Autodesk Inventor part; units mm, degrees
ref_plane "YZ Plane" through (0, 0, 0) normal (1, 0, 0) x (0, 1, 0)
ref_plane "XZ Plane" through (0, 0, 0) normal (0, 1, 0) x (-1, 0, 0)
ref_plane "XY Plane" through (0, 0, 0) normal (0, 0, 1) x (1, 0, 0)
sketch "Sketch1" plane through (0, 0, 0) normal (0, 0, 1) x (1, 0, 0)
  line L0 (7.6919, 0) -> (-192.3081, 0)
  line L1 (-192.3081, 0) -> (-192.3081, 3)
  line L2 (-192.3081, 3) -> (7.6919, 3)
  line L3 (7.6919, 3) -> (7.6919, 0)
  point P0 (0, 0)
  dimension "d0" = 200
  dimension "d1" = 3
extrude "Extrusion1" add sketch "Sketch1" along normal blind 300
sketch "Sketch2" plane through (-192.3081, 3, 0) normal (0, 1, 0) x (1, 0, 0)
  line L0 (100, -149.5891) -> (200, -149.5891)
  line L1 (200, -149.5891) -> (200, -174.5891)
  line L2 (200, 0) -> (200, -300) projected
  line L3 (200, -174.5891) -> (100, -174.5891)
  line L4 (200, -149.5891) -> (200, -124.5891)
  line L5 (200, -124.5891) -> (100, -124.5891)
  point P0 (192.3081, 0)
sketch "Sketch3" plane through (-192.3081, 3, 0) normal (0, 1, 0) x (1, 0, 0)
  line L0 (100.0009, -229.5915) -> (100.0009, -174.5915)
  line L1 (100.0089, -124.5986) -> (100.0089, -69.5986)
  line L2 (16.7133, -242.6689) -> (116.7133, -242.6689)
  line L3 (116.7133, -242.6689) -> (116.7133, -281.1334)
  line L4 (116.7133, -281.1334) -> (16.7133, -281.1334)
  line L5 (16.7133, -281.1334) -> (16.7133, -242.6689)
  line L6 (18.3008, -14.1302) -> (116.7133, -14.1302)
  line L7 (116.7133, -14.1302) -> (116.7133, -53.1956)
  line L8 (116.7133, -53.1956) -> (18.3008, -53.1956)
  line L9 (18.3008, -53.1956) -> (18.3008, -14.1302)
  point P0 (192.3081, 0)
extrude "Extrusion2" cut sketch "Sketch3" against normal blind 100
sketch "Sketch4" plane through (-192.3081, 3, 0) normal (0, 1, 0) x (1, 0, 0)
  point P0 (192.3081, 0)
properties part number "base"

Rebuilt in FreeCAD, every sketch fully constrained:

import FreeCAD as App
import Part
import Sketcher

V = App.Vector

doc = App.newDocument("Part")
params = doc.addObject("Spreadsheet::Sheet", "Params")
for row, (alias, value) in enumerate([
    ("sketch1_width", "200 mm"),
    ("sketch1_height", "3 mm"),
    ("pad1_length", "300 mm"),
    ("sketch2_width", "100 mm"),
    ("pocket1_length", "100 mm"),
], start=1):
    params.set(f"A{row}", alias)
    params.set(f"B{row}", "=" + value)
    params.setAlias(f"B{row}", alias)

body = doc.addObject("PartDesign::Body", "Body")

# Sketch on XY plane
sketch1 = body.newObject("Sketcher::SketchObject", "Sketch")
sketch1.AttachmentSupport = (doc.getObject("XY_Plane"), [""])
sketch1.MapMode = "FlatFace"
sketch1.addGeometry(Part.LineSegment(V(-192.3, 0, 0), V(7.7, 0, 0)), False)
sketch1.addGeometry(Part.LineSegment(V(7.7, 0, 0), V(7.7, 3, 0)), False)
sketch1.addGeometry(Part.LineSegment(V(7.7, 3, 0), V(-192.3, 3, 0)), False)
sketch1.addGeometry(Part.LineSegment(V(-192.3, 3, 0), V(-192.3, 0, 0)), False)
sketch1.addConstraint(Sketcher.Constraint("Coincident", 0, 2, 1, 1))
sketch1.addConstraint(Sketcher.Constraint("Coincident", 1, 2, 2, 1))
sketch1.addConstraint(Sketcher.Constraint("Coincident", 2, 2, 3, 1))
sketch1.addConstraint(Sketcher.Constraint("Coincident", 3, 2, 0, 1))
sketch1.addConstraint(Sketcher.Constraint("Horizontal", 0))
sketch1.addConstraint(Sketcher.Constraint("Vertical", 1))
sketch1.addConstraint(Sketcher.Constraint("Horizontal", 2))
sketch1.addConstraint(Sketcher.Constraint("Vertical", 3))
sketch1.addConstraint(Sketcher.Constraint("PointOnObject", 0, 2, -1))
sketch1.addConstraint(Sketcher.Constraint("DistanceX", 0, 1, 0, 2, 200.0))
sketch1.addConstraint(Sketcher.Constraint("DistanceY", 1, 1, 1, 2, 3.0))
sketch1.addConstraint(Sketcher.Constraint("DistanceX", -1, 1, 0, 2, 7.692))
sketch1.setExpression("Constraints[9]", "Params.sketch1_width")
sketch1.setExpression("Constraints[10]", "Params.sketch1_height")
pad1 = body.newObject("PartDesign::Pad", "Pad")
pad1.Profile = sketch1
pad1.setExpression("Length", "Params.pad1_length")

# Sketch on XZ plane
sketch2 = body.newObject("Sketcher::SketchObject", "Sketch001")
sketch2.AttachmentSupport = (doc.getObject("XZ_Plane"), [""])
sketch2.MapMode = "FlatFace"
sketch2.AttachmentOffset = App.Placement(V(0, 0, -3), App.Rotation())
sketch2.addGeometry(Part.LineSegment(V(-76, 243, 0), V(-176, 243, 0)), False)
sketch2.addGeometry(Part.LineSegment(V(-176, 243, 0), V(-176, 281, 0)), False)
sketch2.addGeometry(Part.LineSegment(V(-176, 281, 0), V(-76, 281, 0)), False)
sketch2.addGeometry(Part.LineSegment(V(-76, 281, 0), V(-76, 243, 0)), False)
sketch2.addGeometry(Part.LineSegment(V(-76, 14, 0), V(-174, 14, 0)), False)
sketch2.addGeometry(Part.LineSegment(V(-174, 14, 0), V(-174, 53, 0)), False)
sketch2.addGeometry(Part.LineSegment(V(-174, 53, 0), V(-76, 53, 0)), False)
sketch2.addGeometry(Part.LineSegment(V(-76, 53, 0), V(-76, 14, 0)), False)
sketch2.addConstraint(Sketcher.Constraint("Coincident", 0, 2, 1, 1))
sketch2.addConstraint(Sketcher.Constraint("Coincident", 1, 2, 2, 1))
sketch2.addConstraint(Sketcher.Constraint("Coincident", 2, 2, 3, 1))
sketch2.addConstraint(Sketcher.Constraint("Coincident", 3, 2, 0, 1))
sketch2.addConstraint(Sketcher.Constraint("Coincident", 4, 2, 5, 1))
sketch2.addConstraint(Sketcher.Constraint("Coincident", 5, 2, 6, 1))
sketch2.addConstraint(Sketcher.Constraint("Coincident", 6, 2, 7, 1))
sketch2.addConstraint(Sketcher.Constraint("Coincident", 7, 2, 4, 1))
sketch2.addConstraint(Sketcher.Constraint("Horizontal", 0))
sketch2.addConstraint(Sketcher.Constraint("Vertical", 1))
sketch2.addConstraint(Sketcher.Constraint("Horizontal", 2))
sketch2.addConstraint(Sketcher.Constraint("Vertical", 3))
sketch2.addConstraint(Sketcher.Constraint("Horizontal", 4))
sketch2.addConstraint(Sketcher.Constraint("Vertical", 5))
sketch2.addConstraint(Sketcher.Constraint("Horizontal", 6))
sketch2.addConstraint(Sketcher.Constraint("Vertical", 7))
sketch2.addConstraint(Sketcher.Constraint("Vertical", 3, 2, 6, 2))
sketch2.addConstraint(Sketcher.Constraint("DistanceX", 0, 2, 0, 1, 100.0))
sketch2.addConstraint(Sketcher.Constraint("DistanceX", 4, 2, 4, 1, 98.4125))
sketch2.addConstraint(Sketcher.Constraint("DistanceY", 1, 1, 1, 2, 38.4645))
sketch2.addConstraint(Sketcher.Constraint("DistanceY", 5, 1, 5, 2, 39.0654))
sketch2.addConstraint(Sketcher.Constraint("DistanceY", -1, 1, 0, 2, 242.669))
sketch2.addConstraint(Sketcher.Constraint("DistanceX", 0, 2, -1, 1, 175.5948))
sketch2.addConstraint(Sketcher.Constraint("DistanceY", -1, 1, 4, 2, 14.1302))
sketch2.setExpression("Constraints[17]", "Params.sketch2_width")
pocket1 = body.newObject("PartDesign::Pocket", "Pocket")
pocket1.Profile = sketch2
pocket1.setExpression("Length", "Params.pocket1_length")
pocket1.Reversed = True

doc.recompute()
